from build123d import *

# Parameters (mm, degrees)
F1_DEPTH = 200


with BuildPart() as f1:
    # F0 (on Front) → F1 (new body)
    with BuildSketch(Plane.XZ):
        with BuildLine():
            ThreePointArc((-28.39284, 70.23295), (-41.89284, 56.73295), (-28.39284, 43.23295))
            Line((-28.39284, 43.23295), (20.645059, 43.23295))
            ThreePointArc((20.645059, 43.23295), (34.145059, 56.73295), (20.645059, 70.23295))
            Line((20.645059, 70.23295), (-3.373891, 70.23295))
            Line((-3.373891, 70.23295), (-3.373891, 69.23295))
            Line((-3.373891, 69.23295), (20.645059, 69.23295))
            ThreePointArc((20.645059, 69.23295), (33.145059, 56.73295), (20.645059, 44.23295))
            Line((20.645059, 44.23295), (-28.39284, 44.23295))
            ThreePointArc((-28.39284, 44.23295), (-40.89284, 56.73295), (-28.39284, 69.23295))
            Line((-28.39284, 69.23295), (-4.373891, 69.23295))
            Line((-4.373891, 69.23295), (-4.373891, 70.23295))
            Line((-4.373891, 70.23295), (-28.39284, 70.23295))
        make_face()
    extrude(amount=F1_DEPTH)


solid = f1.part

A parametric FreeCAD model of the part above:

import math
import FreeCAD as App
import Part
import Sketcher
from FreeCAD import Vector

doc = App.newDocument("Part")
body = doc.addObject("PartDesign::Body", "Body")

# Sketch on XZ plane
sketch1 = body.newObject("Sketcher::SketchObject", "Sketch")
sketch1.AttachmentSupport = (doc.getObject("XZ_Plane"), [""])
sketch1.MapMode = "FlatFace"
sketch1.addGeometry(Part.ArcOfCircle(Part.Circle(Vector(-28.39284, 56.73295, 0), Vector(0, 0, 1), 13.5), math.radians(90), math.radians(270)), False)
sketch1.addGeometry(Part.LineSegment(Vector(-28.39284, 43.23295, 0), Vector(20.645059, 43.23295, 0)), False)
sketch1.addGeometry(Part.ArcOfCircle(Part.Circle(Vector(20.645059, 56.73295, 0), Vector(0, 0, 1), 13.5), math.radians(-90), math.radians(90)), False)
sketch1.addGeometry(Part.LineSegment(Vector(20.645059, 70.23295, 0), Vector(-3.373891, 70.23295, 0)), False)
sketch1.addGeometry(Part.LineSegment(Vector(-3.373891, 70.23295, 0), Vector(-3.373891, 69.23295, 0)), False)
sketch1.addGeometry(Part.LineSegment(Vector(-3.373891, 69.23295, 0), Vector(20.645059, 69.23295, 0)), False)
sketch1.addGeometry(Part.ArcOfCircle(Part.Circle(Vector(20.645059, 56.73295, 0), Vector(0, 0, 1), 12.5), math.radians(-90), math.radians(90)), False)
sketch1.addGeometry(Part.LineSegment(Vector(20.645059, 44.23295, 0), Vector(-28.39284, 44.23295, 0)), False)
sketch1.addGeometry(Part.ArcOfCircle(Part.Circle(Vector(-28.39284, 56.73295, 0), Vector(0, 0, 1), 12.5), math.radians(90), math.radians(270)), False)
sketch1.addGeometry(Part.LineSegment(Vector(-28.39284, 69.23295, 0), Vector(-4.373891, 69.23295, 0)), False)
sketch1.addGeometry(Part.LineSegment(Vector(-4.373891, 69.23295, 0), Vector(-4.373891, 70.23295, 0)), False)
sketch1.addGeometry(Part.LineSegment(Vector(-4.373891, 70.23295, 0), Vector(-28.39284, 70.23295, 0)), False)
sketch1.addConstraint(Sketcher.Constraint("Tangent", 0, 2, 1, 1))
sketch1.addConstraint(Sketcher.Constraint("Tangent", 1, 2, 2, 1))
sketch1.addConstraint(Sketcher.Constraint("Tangent", 2, 2, 3, 1))
sketch1.addConstraint(Sketcher.Constraint("Coincident", 3, 2, 4, 1))
sketch1.addConstraint(Sketcher.Constraint("Coincident", 4, 2, 5, 1))
sketch1.addConstraint(Sketcher.Constraint("Tangent", 5, 2, 6, 2))
sketch1.addConstraint(Sketcher.Constraint("Tangent", 6, 1, 7, 1))
sketch1.addConstraint(Sketcher.Constraint("Tangent", 7, 2, 8, 2))
sketch1.addConstraint(Sketcher.Constraint("Tangent", 8, 1, 9, 1))
sketch1.addConstraint(Sketcher.Constraint("Coincident", 9, 2, 10, 1))
sketch1.addConstraint(Sketcher.Constraint("Coincident", 10, 2, 11, 1))
sketch1.addConstraint(Sketcher.Constraint("Tangent", 11, 2, 0, 1))
sketch1.addConstraint(Sketcher.Constraint("Horizontal", 1))
sketch1.addConstraint(Sketcher.Constraint("Horizontal", 3))
sketch1.addConstraint(Sketcher.Constraint("Vertical", 4))
sketch1.addConstraint(Sketcher.Constraint("Horizontal", 5))
sketch1.addConstraint(Sketcher.Constraint("Horizontal", 7))
sketch1.addConstraint(Sketcher.Constraint("Horizontal", 9))
sketch1.addConstraint(Sketcher.Constraint("Vertical", 10))
sketch1.addConstraint(Sketcher.Constraint("Horizontal", 11))
sketch1.addConstraint(Sketcher.Constraint("Coincident", 6, 3, 2, 3))
sketch1.addConstraint(Sketcher.Constraint("Coincident", 8, 3, 0, 3))
sketch1.addConstraint(Sketcher.Constraint("Equal", 0, 2))
sketch1.addConstraint(Sketcher.Constraint("Equal", 5, 9))
sketch1.addConstraint(Sketcher.Constraint("Radius", 0, 13.5))
sketch1.addConstraint(Sketcher.Constraint("Radius", 6, 12.5))
sketch1.addConstraint(Sketcher.Constraint("DistanceX", 9, 2, 4, 2, 1.0))
sketch1.addConstraint(Sketcher.Constraint("DistanceX", 1, 1, 1, 2, 49.037899))
sketch1.addConstraint(Sketcher.Constraint("DistanceX", 0, 3, -1, 1, 28.39284))
sketch1.addConstraint(Sketcher.Constraint("DistanceY", -1, 1, 0, 3, 56.73295))
pad1 = body.newObject("PartDesign::Pad", "Pad")
pad1.Profile = sketch1
pad1.Length = 200

doc.recompute()
